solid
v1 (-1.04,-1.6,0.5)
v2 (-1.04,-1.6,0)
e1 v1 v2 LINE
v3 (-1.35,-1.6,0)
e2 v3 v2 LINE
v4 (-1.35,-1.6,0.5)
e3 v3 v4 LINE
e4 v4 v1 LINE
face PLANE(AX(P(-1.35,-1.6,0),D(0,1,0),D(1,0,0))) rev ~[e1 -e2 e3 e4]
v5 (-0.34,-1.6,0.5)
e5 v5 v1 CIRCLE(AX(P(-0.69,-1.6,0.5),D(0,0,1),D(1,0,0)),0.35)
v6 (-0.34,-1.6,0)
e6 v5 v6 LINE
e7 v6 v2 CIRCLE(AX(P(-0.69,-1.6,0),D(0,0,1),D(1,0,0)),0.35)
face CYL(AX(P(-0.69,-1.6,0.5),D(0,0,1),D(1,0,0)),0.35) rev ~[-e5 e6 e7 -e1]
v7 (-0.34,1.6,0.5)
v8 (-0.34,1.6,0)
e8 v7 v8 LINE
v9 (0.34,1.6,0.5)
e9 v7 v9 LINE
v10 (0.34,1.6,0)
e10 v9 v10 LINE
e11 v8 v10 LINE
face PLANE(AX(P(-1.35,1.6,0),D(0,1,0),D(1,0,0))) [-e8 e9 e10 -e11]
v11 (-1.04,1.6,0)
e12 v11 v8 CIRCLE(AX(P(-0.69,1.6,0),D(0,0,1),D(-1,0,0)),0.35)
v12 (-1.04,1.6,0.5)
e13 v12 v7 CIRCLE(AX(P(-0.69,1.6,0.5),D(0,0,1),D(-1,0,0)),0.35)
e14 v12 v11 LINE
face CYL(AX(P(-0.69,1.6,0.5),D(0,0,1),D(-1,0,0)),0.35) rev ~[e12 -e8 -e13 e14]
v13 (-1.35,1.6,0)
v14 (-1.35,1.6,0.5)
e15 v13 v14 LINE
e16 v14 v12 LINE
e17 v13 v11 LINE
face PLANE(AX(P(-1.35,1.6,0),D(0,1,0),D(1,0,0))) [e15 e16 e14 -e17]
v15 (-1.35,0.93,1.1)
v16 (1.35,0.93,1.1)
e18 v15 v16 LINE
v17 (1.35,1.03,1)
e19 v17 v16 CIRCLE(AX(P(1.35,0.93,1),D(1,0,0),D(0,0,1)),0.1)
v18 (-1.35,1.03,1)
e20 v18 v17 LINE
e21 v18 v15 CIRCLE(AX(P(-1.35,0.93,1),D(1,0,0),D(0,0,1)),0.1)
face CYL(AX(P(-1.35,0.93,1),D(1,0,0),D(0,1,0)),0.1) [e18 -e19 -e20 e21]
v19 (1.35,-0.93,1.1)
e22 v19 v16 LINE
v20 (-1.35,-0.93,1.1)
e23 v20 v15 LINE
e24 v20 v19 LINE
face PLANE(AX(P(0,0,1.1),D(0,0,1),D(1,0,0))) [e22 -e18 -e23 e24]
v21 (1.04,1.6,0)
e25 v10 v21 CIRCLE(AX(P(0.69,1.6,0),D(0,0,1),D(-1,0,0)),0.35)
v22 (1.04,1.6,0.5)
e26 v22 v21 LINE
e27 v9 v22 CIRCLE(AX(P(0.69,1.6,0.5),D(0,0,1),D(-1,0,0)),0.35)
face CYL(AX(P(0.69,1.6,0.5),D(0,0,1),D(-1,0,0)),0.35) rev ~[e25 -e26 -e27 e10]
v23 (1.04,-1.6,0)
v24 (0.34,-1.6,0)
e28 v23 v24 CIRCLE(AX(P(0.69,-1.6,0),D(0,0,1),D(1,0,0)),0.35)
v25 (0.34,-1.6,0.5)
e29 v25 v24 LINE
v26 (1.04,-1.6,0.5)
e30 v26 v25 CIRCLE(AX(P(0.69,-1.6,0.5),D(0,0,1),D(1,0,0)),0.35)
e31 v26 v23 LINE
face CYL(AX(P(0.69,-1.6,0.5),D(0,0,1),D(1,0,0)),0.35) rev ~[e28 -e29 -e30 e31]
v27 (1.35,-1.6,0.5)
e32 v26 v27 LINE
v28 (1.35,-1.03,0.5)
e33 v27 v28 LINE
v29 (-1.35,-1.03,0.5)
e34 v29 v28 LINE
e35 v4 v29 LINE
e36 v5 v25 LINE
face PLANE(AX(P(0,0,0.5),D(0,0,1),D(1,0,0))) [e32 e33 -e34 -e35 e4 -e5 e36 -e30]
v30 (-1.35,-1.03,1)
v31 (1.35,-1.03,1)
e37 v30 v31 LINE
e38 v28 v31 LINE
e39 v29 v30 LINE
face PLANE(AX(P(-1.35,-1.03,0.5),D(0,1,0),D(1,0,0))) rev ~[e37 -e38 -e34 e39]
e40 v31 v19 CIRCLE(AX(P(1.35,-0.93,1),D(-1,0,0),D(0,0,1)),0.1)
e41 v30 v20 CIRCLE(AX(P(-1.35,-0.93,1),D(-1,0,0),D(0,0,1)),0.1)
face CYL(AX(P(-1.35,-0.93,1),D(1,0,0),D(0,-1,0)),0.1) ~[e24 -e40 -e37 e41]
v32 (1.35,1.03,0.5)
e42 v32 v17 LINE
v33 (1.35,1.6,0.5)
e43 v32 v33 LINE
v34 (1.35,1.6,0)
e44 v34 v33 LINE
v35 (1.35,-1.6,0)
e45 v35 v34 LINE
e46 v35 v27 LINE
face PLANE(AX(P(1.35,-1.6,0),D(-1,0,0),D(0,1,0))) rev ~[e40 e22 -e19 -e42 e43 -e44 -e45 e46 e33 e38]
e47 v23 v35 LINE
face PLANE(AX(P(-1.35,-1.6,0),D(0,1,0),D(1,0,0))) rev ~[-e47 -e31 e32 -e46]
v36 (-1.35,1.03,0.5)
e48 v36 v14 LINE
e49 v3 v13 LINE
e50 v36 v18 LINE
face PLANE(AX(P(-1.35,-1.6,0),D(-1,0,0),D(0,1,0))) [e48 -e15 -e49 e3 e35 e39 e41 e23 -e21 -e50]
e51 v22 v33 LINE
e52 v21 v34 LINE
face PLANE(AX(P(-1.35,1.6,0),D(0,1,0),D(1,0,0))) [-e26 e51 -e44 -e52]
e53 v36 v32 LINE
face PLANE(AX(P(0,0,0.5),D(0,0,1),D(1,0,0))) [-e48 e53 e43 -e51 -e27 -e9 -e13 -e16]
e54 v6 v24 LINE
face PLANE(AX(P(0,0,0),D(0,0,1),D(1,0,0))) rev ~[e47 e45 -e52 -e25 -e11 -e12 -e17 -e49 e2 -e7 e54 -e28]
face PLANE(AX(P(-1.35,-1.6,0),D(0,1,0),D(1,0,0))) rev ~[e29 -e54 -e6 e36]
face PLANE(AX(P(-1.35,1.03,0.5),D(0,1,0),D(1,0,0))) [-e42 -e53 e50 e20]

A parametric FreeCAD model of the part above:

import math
import FreeCAD as App
import Part
import Sketcher

V = App.Vector
Q = App.Units.Quantity


def edges_at(feature, points):
    """Names of the edges that pass closest to the given points."""
    edges = feature.Shape.Edges
    near = lambda p: min(range(len(edges)), key=lambda i: edges[i].distToShape(Part.Vertex(*p))[0])
    return sorted({f"Edge{near(p) + 1}" for p in points})

doc = App.newDocument("Part")
body = doc.addObject("PartDesign::Body", "Body")

# Sketch on XY plane
sketch1 = doc.addObject("Sketcher::SketchObject", "Sketch")
body.addObject(sketch1)
sketch1.AttachmentSupport = (doc.XY_Plane, [""])
sketch1.MapMode = "FlatFace"
sketch1.addGeometry(Part.LineSegment(V(-1.4, 1.6, 0), V(-1.4, -1.6, 0)), False)
sketch1.addGeometry(Part.LineSegment(V(-1.4, -1.6, 0), V(1.4, -1.6, 0)), False)
sketch1.addGeometry(Part.LineSegment(V(1.4, -1.6, 0), V(1.4, 1.6, 0)), False)
sketch1.addGeometry(Part.LineSegment(V(1.4, 1.6, 0), V(-1.4, 1.6, 0)), False)
sketch1.addConstraint(Sketcher.Constraint("Coincident", 0, 2, 1, 1))
sketch1.addConstraint(Sketcher.Constraint("Coincident", 1, 2, 2, 1))
sketch1.addConstraint(Sketcher.Constraint("Coincident", 2, 2, 3, 1))
sketch1.addConstraint(Sketcher.Constraint("Coincident", 3, 2, 0, 1))
sketch1.addConstraint(Sketcher.Constraint("Vertical", 0))
sketch1.addConstraint(Sketcher.Constraint("Horizontal", 1))
sketch1.addConstraint(Sketcher.Constraint("Vertical", 2))
sketch1.addConstraint(Sketcher.Constraint("Horizontal", 3))
sketch1.addConstraint(Sketcher.Constraint("Symmetric", 0, 2, 2, 2, -1, 1))
sketch1.addConstraint(Sketcher.Constraint("DistanceX", 1, 1, 1, 2, Q("2.7 mm")))
sketch1.addConstraint(Sketcher.Constraint("DistanceY", 0, 2, 0, 1, Q("3.2 mm")))
pad1 = doc.addObject("PartDesign::Pad", "Pad")
body.addObject(pad1)
pad1.Profile = sketch1
pad1.Length = 0.5

# Sketch on XY plane
sketch2 = doc.addObject("Sketcher::SketchObject", "Sketch001")
body.addObject(sketch2)
sketch2.AttachmentSupport = (doc.XY_Plane, [""])
sketch2.MapMode = "FlatFace"
sketch2.AttachmentOffset = App.Placement(V(0, 0, 0.5), App.Rotation())
sketch2.addGeometry(Part.LineSegment(V(-0.34, 1.6, 0), V(-1.04, 1.6, 0)), False)
sketch2.addGeometry(Part.ArcOfCircle(Part.Circle(V(-0.69, 1.6, 0), V(0, 0, 1), 0.35), math.radians(180), math.radians(360)), False)
sketch2.addGeometry(Part.LineSegment(V(1.04, 1.6, 0), V(0.34, 1.6, 0)), False)
sketch2.addGeometry(Part.ArcOfCircle(Part.Circle(V(0.69, 1.6, 0), V(0, 0, 1), 0.35), math.radians(180), math.radians(360)), False)
sketch2.addGeometry(Part.ArcOfCircle(Part.Circle(V(0.69, -1.6, 0), V(0, 0, 1), 0.35), math.radians(0), math.radians(180)), False)
sketch2.addGeometry(Part.LineSegment(V(0.34, -1.6, 0), V(1.04, -1.6, 0)), False)
sketch2.addGeometry(Part.ArcOfCircle(Part.Circle(V(-0.69, -1.6, 0), V(0, 0, 1), 0.35), math.radians(0), math.radians(180)), False)
sketch2.addGeometry(Part.LineSegment(V(-1.04, -1.6, 0), V(-0.34, -1.6, 0)), False)
sketch2.addConstraint(Sketcher.Constraint("Coincident", 0, 1, 1, 2))
sketch2.addConstraint(Sketcher.Constraint("Coincident", 1, 1, 0, 2))
sketch2.addConstraint(Sketcher.Constraint("Coincident", 2, 1, 3, 2))
sketch2.addConstraint(Sketcher.Constraint("Coincident", 3, 1, 2, 2))
sketch2.addConstraint(Sketcher.Constraint("Coincident", 4, 1, 5, 2))
sketch2.addConstraint(Sketcher.Constraint("Coincident", 5, 1, 4, 2))
sketch2.addConstraint(Sketcher.Constraint("Coincident", 6, 1, 7, 2))
sketch2.addConstraint(Sketcher.Constraint("Coincident", 7, 1, 6, 2))
sketch2.addConstraint(Sketcher.Constraint("Horizontal", 0))
sketch2.addConstraint(Sketcher.Constraint("Horizontal", 2))
sketch2.addConstraint(Sketcher.Constraint("Horizontal", 5))
sketch2.addConstraint(Sketcher.Constraint("Horizontal", 7))
sketch2.addConstraint(Sketcher.Constraint("Equal", 1, 3))
sketch2.addConstraint(Sketcher.Constraint("Equal", 3, 4))
sketch2.addConstraint(Sketcher.Constraint("Equal", 4, 6))
sketch2.addConstraint(Sketcher.Constraint("Symmetric", 1, 3, 4, 3, -1, 1))
sketch2.addConstraint(Sketcher.Constraint("Symmetric", 3, 3, 6, 3, -1, 1))
sketch2.addConstraint(Sketcher.Constraint("Symmetric", 1, 3, 3, 3, -2))
sketch2.addConstraint(Sketcher.Constraint("Horizontal", 3, 3, 0, 1))
sketch2.addConstraint(Sketcher.Constraint("Horizontal", 1, 1, 2, 1))
sketch2.addConstraint(Sketcher.Constraint("Horizontal", 6, 3, 4, 1))
sketch2.addConstraint(Sketcher.Constraint("Horizontal", 5, 1, 6, 1))
sketch2.addConstraint(Sketcher.Constraint("Radius", 1, Q("0.35 mm")))
sketch2.addConstraint(Sketcher.Constraint("DistanceY", -1, 1, 1, 3, Q("1.6 mm")))
sketch2.addConstraint(Sketcher.Constraint("DistanceX", 1, 3, -1, 1, Q("0.69 mm")))
pocket1 = doc.addObject("PartDesign::Pocket", "Pocket")
body.addObject(pocket1)
pocket1.Profile = sketch2
pocket1.Type = "ThroughAll"

# Sketch on XY plane
sketch3 = doc.addObject("Sketcher::SketchObject", "Sketch002")
body.addObject(sketch3)
sketch3.AttachmentSupport = (doc.XY_Plane, [""])
sketch3.MapMode = "FlatFace"
sketch3.AttachmentOffset = App.Placement(V(0, 0, 0.5), App.Rotation())
sketch3.addGeometry(Part.LineSegment(V(-1.4, 1, 0), V(-1.4, -1, 0)), False)
sketch3.addGeometry(Part.LineSegment(V(-1.4, -1, 0), V(1.4, -1, 0)), False)
sketch3.addGeometry(Part.LineSegment(V(1.4, -1, 0), V(1.4, 1, 0)), False)
sketch3.addGeometry(Part.LineSegment(V(1.4, 1, 0), V(-1.4, 1, 0)), False)
sketch3.addConstraint(Sketcher.Constraint("Coincident", 0, 2, 1, 1))
sketch3.addConstraint(Sketcher.Constraint("Coincident", 1, 2, 2, 1))
sketch3.addConstraint(Sketcher.Constraint("Coincident", 2, 2, 3, 1))
sketch3.addConstraint(Sketcher.Constraint("Coincident", 3, 2, 0, 1))
sketch3.addConstraint(Sketcher.Constraint("Vertical", 0))
sketch3.addConstraint(Sketcher.Constraint("Horizontal", 1))
sketch3.addConstraint(Sketcher.Constraint("Vertical", 2))
sketch3.addConstraint(Sketcher.Constraint("Horizontal", 3))
sketch3.addConstraint(Sketcher.Constraint("Symmetric", 0, 2, 2, 2, -1, 1))
sketch3.addConstraint(Sketcher.Constraint("DistanceX", 1, 1, 1, 2, Q("2.7 mm")))
sketch3.addConstraint(Sketcher.Constraint("DistanceY", 0, 2, 0, 1, Q("2.06 mm")))
pad2 = doc.addObject("PartDesign::Pad", "Pad001")
body.addObject(pad2)
pad2.Profile = sketch3
pad2.Length = 0.6
doc.recompute()

fillet = doc.addObject("PartDesign::Fillet", "Fillet")
body.addObject(fillet)
fillet.Base = (pad2, edges_at(pad2, [(0, 1.03, 1.1), (0, -1.03, 1.1)]))
fillet.Radius = 0.1

doc.recompute()
